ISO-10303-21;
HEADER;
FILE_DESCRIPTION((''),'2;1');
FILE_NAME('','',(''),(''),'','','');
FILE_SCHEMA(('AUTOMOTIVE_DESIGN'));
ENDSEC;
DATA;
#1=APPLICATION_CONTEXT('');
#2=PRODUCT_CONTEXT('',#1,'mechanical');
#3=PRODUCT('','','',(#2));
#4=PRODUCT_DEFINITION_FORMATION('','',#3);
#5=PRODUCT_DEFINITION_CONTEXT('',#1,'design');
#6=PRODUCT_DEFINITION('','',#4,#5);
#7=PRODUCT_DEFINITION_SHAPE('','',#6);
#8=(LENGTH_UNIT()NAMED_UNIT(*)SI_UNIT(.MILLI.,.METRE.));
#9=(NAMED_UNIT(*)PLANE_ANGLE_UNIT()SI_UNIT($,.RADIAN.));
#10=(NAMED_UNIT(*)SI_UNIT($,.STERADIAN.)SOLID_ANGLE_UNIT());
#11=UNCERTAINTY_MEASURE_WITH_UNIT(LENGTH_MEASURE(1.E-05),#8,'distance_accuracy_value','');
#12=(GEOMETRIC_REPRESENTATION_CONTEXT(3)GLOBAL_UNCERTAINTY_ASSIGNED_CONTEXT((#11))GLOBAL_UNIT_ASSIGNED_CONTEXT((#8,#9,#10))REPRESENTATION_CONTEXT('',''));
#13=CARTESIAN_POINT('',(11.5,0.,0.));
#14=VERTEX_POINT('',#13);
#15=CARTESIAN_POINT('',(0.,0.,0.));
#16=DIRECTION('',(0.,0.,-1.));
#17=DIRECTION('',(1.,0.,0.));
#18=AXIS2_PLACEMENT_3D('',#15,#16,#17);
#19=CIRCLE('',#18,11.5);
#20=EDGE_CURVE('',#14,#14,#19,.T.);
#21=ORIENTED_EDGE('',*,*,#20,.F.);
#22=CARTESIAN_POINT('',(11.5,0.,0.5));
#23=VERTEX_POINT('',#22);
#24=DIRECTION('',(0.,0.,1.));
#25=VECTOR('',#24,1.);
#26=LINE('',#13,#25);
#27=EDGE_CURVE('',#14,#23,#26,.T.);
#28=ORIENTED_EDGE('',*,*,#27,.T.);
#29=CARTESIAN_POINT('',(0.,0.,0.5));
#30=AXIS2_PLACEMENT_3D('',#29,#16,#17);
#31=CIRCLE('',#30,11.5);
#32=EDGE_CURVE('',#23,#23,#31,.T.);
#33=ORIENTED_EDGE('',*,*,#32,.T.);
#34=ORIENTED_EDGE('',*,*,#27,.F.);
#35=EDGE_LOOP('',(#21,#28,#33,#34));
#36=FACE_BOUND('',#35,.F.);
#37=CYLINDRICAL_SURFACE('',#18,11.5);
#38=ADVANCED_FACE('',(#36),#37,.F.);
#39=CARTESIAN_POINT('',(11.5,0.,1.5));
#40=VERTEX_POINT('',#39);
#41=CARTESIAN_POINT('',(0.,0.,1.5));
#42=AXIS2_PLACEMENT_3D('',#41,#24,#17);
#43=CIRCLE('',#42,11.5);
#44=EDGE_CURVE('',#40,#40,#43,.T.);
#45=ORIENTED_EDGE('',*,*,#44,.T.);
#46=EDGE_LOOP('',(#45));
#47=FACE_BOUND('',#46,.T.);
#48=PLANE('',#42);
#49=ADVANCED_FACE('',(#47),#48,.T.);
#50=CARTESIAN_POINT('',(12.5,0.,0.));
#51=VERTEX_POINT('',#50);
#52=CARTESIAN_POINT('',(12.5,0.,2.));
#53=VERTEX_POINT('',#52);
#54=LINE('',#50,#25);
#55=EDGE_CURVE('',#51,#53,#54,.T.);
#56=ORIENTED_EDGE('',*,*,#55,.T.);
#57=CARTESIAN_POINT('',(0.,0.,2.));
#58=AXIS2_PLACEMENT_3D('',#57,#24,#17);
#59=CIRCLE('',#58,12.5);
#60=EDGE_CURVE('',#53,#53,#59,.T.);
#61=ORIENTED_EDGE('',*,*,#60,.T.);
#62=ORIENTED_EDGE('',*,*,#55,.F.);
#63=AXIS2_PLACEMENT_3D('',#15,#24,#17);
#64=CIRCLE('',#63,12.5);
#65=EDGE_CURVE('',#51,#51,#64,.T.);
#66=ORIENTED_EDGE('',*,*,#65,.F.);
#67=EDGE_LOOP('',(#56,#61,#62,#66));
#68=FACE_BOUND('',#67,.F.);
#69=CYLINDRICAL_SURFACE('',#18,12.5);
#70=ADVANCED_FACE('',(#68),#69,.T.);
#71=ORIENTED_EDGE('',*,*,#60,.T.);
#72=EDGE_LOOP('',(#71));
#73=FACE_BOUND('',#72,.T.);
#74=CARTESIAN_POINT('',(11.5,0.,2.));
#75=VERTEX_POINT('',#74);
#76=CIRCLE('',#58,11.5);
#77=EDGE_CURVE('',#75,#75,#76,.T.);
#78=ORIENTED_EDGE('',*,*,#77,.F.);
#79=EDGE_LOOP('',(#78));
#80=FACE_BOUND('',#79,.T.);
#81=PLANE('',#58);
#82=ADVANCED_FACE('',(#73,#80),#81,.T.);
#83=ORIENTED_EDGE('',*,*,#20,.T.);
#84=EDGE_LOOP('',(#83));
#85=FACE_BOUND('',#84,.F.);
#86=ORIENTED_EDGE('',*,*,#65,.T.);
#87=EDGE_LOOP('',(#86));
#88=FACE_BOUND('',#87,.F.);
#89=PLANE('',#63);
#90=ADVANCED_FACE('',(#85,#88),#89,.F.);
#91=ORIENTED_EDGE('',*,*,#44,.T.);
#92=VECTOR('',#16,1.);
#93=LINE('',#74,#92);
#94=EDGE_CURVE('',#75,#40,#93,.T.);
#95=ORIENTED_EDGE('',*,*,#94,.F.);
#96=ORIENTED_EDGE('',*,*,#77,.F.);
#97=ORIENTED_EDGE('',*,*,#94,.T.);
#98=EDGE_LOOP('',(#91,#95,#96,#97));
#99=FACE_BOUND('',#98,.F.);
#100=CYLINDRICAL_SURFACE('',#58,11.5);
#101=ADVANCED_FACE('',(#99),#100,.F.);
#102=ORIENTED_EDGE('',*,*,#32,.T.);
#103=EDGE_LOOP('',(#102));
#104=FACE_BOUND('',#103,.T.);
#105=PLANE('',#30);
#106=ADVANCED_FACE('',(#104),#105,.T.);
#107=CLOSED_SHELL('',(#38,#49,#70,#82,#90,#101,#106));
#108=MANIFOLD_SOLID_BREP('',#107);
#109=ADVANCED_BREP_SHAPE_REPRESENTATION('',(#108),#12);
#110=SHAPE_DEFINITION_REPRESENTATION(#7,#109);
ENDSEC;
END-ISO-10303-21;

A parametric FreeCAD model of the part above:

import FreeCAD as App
import Part
import Sketcher
from FreeCAD import Vector

doc = App.newDocument("Part")
body = doc.addObject("PartDesign::Body", "Body")

sketch1 = doc.addObject("Sketcher::SketchObject", "Sketch")
body.addObject(sketch1)
sketch1.AttachmentSupport = (doc.XY_Plane, [""])
sketch1.MapMode = "FlatFace"
sketch1.addGeometry(Part.Circle(Vector(0, 0, 0), Vector(0, 0, 1), 12.5), False)
sketch1.addConstraint([
    Sketcher.Constraint("Coincident", 0, 3, -1, 1),
    Sketcher.Constraint("Diameter", 0, 25.0),
])
pad1 = doc.addObject("PartDesign::Pad", "Pad")
body.addObject(pad1)
pad1.Profile = sketch1
pad1.Length = 2

sketch2 = doc.addObject("Sketcher::SketchObject", "Sketch001")
body.addObject(sketch2)
sketch2.AttachmentSupport = (doc.XY_Plane, [""])
sketch2.MapMode = "FlatFace"
sketch2.AttachmentOffset = App.Placement(Vector(0, 0, 2), App.Rotation())
sketch2.addGeometry(Part.Circle(Vector(0, 0, 0), Vector(0, 0, 1), 11.5), False)
sketch2.addConstraint([
    Sketcher.Constraint("Coincident", 0, 3, -1, 1),
    Sketcher.Constraint("Diameter", 0, 23.0),
])
pocket1 = doc.addObject("PartDesign::Pocket", "Pocket")
body.addObject(pocket1)
pocket1.Profile = sketch2
pocket1.Length = 0.5

sketch3 = doc.addObject("Sketcher::SketchObject", "Sketch002")
body.addObject(sketch3)
sketch3.AttachmentSupport = (doc.XY_Plane, [""])
sketch3.MapMode = "FlatFace"
sketch3.addGeometry(Part.Circle(Vector(0, 0, 0), Vector(0, 0, 1), 11.5), False)
sketch3.addConstraint([
    Sketcher.Constraint("Coincident", 0, 3, -1, 1),
    Sketcher.Constraint("Diameter", 0, 23.0),
])
pocket2 = doc.addObject("PartDesign::Pocket", "Pocket001")
body.addObject(pocket2)
pocket2.Profile = sketch3
pocket2.Length = 0.5
pocket2.Reversed = True

doc.recompute()
